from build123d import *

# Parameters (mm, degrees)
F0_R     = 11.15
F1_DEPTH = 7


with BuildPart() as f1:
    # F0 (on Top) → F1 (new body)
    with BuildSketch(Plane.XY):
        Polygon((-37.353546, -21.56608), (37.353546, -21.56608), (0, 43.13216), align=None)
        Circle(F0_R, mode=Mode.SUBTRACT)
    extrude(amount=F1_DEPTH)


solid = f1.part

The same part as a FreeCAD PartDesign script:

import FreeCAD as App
import Part
import Sketcher
from FreeCAD import Vector
Q = App.Units.Quantity

doc = App.newDocument("Part")
body = doc.addObject("PartDesign::Body", "Body")

sketch1 = doc.addObject("Sketcher::SketchObject", "Sketch")
body.addObject(sketch1)
sketch1.AttachmentSupport = (doc.XY_Plane, [""])
sketch1.MapMode = "FlatFace"
sketch1.addGeometry(Part.LineSegment(Vector(-37.353546, -21.56608, 0), Vector(37.353546, -21.56608, 0)), False)
sketch1.addGeometry(Part.LineSegment(Vector(37.353546, -21.56608, 0), Vector(0, 43.13216, 0)), False)
sketch1.addGeometry(Part.LineSegment(Vector(0, 43.13216, 0), Vector(-37.353546, -21.56608, 0)), False)
sketch1.addGeometry(Part.Circle(Vector(0, 0, 0), Vector(0, 0, 1), 11.15), False)
sketch1.addConstraint(Sketcher.Constraint("Coincident", 0, 2, 1, 1))
sketch1.addConstraint(Sketcher.Constraint("Coincident", 1, 2, 2, 1))
sketch1.addConstraint(Sketcher.Constraint("Coincident", 2, 2, 0, 1))
sketch1.addConstraint(Sketcher.Constraint("Horizontal", 0))
sketch1.addConstraint(Sketcher.Constraint("Coincident", 3, 3, -1, 1))
sketch1.addConstraint(Sketcher.Constraint("PointOnObject", 1, 2, -2))
sketch1.addConstraint(Sketcher.Constraint("Equal", 1, 2))
sketch1.addConstraint(Sketcher.Constraint("Diameter", 3, Q("22.3 mm")))
sketch1.addConstraint(Sketcher.Constraint("Angle", 1, Q("120 deg")))
sketch1.addConstraint(Sketcher.Constraint("DistanceX", 0, 1, 0, 2, Q("74.707092 mm")))
sketch1.addConstraint(Sketcher.Constraint("DistanceY", 0, 2, -1, 1, Q("21.56608 mm")))
pad1 = doc.addObject("PartDesign::Pad", "Pad")
body.addObject(pad1)
pad1.Profile = sketch1
pad1.Length = 7

doc.recompute()
